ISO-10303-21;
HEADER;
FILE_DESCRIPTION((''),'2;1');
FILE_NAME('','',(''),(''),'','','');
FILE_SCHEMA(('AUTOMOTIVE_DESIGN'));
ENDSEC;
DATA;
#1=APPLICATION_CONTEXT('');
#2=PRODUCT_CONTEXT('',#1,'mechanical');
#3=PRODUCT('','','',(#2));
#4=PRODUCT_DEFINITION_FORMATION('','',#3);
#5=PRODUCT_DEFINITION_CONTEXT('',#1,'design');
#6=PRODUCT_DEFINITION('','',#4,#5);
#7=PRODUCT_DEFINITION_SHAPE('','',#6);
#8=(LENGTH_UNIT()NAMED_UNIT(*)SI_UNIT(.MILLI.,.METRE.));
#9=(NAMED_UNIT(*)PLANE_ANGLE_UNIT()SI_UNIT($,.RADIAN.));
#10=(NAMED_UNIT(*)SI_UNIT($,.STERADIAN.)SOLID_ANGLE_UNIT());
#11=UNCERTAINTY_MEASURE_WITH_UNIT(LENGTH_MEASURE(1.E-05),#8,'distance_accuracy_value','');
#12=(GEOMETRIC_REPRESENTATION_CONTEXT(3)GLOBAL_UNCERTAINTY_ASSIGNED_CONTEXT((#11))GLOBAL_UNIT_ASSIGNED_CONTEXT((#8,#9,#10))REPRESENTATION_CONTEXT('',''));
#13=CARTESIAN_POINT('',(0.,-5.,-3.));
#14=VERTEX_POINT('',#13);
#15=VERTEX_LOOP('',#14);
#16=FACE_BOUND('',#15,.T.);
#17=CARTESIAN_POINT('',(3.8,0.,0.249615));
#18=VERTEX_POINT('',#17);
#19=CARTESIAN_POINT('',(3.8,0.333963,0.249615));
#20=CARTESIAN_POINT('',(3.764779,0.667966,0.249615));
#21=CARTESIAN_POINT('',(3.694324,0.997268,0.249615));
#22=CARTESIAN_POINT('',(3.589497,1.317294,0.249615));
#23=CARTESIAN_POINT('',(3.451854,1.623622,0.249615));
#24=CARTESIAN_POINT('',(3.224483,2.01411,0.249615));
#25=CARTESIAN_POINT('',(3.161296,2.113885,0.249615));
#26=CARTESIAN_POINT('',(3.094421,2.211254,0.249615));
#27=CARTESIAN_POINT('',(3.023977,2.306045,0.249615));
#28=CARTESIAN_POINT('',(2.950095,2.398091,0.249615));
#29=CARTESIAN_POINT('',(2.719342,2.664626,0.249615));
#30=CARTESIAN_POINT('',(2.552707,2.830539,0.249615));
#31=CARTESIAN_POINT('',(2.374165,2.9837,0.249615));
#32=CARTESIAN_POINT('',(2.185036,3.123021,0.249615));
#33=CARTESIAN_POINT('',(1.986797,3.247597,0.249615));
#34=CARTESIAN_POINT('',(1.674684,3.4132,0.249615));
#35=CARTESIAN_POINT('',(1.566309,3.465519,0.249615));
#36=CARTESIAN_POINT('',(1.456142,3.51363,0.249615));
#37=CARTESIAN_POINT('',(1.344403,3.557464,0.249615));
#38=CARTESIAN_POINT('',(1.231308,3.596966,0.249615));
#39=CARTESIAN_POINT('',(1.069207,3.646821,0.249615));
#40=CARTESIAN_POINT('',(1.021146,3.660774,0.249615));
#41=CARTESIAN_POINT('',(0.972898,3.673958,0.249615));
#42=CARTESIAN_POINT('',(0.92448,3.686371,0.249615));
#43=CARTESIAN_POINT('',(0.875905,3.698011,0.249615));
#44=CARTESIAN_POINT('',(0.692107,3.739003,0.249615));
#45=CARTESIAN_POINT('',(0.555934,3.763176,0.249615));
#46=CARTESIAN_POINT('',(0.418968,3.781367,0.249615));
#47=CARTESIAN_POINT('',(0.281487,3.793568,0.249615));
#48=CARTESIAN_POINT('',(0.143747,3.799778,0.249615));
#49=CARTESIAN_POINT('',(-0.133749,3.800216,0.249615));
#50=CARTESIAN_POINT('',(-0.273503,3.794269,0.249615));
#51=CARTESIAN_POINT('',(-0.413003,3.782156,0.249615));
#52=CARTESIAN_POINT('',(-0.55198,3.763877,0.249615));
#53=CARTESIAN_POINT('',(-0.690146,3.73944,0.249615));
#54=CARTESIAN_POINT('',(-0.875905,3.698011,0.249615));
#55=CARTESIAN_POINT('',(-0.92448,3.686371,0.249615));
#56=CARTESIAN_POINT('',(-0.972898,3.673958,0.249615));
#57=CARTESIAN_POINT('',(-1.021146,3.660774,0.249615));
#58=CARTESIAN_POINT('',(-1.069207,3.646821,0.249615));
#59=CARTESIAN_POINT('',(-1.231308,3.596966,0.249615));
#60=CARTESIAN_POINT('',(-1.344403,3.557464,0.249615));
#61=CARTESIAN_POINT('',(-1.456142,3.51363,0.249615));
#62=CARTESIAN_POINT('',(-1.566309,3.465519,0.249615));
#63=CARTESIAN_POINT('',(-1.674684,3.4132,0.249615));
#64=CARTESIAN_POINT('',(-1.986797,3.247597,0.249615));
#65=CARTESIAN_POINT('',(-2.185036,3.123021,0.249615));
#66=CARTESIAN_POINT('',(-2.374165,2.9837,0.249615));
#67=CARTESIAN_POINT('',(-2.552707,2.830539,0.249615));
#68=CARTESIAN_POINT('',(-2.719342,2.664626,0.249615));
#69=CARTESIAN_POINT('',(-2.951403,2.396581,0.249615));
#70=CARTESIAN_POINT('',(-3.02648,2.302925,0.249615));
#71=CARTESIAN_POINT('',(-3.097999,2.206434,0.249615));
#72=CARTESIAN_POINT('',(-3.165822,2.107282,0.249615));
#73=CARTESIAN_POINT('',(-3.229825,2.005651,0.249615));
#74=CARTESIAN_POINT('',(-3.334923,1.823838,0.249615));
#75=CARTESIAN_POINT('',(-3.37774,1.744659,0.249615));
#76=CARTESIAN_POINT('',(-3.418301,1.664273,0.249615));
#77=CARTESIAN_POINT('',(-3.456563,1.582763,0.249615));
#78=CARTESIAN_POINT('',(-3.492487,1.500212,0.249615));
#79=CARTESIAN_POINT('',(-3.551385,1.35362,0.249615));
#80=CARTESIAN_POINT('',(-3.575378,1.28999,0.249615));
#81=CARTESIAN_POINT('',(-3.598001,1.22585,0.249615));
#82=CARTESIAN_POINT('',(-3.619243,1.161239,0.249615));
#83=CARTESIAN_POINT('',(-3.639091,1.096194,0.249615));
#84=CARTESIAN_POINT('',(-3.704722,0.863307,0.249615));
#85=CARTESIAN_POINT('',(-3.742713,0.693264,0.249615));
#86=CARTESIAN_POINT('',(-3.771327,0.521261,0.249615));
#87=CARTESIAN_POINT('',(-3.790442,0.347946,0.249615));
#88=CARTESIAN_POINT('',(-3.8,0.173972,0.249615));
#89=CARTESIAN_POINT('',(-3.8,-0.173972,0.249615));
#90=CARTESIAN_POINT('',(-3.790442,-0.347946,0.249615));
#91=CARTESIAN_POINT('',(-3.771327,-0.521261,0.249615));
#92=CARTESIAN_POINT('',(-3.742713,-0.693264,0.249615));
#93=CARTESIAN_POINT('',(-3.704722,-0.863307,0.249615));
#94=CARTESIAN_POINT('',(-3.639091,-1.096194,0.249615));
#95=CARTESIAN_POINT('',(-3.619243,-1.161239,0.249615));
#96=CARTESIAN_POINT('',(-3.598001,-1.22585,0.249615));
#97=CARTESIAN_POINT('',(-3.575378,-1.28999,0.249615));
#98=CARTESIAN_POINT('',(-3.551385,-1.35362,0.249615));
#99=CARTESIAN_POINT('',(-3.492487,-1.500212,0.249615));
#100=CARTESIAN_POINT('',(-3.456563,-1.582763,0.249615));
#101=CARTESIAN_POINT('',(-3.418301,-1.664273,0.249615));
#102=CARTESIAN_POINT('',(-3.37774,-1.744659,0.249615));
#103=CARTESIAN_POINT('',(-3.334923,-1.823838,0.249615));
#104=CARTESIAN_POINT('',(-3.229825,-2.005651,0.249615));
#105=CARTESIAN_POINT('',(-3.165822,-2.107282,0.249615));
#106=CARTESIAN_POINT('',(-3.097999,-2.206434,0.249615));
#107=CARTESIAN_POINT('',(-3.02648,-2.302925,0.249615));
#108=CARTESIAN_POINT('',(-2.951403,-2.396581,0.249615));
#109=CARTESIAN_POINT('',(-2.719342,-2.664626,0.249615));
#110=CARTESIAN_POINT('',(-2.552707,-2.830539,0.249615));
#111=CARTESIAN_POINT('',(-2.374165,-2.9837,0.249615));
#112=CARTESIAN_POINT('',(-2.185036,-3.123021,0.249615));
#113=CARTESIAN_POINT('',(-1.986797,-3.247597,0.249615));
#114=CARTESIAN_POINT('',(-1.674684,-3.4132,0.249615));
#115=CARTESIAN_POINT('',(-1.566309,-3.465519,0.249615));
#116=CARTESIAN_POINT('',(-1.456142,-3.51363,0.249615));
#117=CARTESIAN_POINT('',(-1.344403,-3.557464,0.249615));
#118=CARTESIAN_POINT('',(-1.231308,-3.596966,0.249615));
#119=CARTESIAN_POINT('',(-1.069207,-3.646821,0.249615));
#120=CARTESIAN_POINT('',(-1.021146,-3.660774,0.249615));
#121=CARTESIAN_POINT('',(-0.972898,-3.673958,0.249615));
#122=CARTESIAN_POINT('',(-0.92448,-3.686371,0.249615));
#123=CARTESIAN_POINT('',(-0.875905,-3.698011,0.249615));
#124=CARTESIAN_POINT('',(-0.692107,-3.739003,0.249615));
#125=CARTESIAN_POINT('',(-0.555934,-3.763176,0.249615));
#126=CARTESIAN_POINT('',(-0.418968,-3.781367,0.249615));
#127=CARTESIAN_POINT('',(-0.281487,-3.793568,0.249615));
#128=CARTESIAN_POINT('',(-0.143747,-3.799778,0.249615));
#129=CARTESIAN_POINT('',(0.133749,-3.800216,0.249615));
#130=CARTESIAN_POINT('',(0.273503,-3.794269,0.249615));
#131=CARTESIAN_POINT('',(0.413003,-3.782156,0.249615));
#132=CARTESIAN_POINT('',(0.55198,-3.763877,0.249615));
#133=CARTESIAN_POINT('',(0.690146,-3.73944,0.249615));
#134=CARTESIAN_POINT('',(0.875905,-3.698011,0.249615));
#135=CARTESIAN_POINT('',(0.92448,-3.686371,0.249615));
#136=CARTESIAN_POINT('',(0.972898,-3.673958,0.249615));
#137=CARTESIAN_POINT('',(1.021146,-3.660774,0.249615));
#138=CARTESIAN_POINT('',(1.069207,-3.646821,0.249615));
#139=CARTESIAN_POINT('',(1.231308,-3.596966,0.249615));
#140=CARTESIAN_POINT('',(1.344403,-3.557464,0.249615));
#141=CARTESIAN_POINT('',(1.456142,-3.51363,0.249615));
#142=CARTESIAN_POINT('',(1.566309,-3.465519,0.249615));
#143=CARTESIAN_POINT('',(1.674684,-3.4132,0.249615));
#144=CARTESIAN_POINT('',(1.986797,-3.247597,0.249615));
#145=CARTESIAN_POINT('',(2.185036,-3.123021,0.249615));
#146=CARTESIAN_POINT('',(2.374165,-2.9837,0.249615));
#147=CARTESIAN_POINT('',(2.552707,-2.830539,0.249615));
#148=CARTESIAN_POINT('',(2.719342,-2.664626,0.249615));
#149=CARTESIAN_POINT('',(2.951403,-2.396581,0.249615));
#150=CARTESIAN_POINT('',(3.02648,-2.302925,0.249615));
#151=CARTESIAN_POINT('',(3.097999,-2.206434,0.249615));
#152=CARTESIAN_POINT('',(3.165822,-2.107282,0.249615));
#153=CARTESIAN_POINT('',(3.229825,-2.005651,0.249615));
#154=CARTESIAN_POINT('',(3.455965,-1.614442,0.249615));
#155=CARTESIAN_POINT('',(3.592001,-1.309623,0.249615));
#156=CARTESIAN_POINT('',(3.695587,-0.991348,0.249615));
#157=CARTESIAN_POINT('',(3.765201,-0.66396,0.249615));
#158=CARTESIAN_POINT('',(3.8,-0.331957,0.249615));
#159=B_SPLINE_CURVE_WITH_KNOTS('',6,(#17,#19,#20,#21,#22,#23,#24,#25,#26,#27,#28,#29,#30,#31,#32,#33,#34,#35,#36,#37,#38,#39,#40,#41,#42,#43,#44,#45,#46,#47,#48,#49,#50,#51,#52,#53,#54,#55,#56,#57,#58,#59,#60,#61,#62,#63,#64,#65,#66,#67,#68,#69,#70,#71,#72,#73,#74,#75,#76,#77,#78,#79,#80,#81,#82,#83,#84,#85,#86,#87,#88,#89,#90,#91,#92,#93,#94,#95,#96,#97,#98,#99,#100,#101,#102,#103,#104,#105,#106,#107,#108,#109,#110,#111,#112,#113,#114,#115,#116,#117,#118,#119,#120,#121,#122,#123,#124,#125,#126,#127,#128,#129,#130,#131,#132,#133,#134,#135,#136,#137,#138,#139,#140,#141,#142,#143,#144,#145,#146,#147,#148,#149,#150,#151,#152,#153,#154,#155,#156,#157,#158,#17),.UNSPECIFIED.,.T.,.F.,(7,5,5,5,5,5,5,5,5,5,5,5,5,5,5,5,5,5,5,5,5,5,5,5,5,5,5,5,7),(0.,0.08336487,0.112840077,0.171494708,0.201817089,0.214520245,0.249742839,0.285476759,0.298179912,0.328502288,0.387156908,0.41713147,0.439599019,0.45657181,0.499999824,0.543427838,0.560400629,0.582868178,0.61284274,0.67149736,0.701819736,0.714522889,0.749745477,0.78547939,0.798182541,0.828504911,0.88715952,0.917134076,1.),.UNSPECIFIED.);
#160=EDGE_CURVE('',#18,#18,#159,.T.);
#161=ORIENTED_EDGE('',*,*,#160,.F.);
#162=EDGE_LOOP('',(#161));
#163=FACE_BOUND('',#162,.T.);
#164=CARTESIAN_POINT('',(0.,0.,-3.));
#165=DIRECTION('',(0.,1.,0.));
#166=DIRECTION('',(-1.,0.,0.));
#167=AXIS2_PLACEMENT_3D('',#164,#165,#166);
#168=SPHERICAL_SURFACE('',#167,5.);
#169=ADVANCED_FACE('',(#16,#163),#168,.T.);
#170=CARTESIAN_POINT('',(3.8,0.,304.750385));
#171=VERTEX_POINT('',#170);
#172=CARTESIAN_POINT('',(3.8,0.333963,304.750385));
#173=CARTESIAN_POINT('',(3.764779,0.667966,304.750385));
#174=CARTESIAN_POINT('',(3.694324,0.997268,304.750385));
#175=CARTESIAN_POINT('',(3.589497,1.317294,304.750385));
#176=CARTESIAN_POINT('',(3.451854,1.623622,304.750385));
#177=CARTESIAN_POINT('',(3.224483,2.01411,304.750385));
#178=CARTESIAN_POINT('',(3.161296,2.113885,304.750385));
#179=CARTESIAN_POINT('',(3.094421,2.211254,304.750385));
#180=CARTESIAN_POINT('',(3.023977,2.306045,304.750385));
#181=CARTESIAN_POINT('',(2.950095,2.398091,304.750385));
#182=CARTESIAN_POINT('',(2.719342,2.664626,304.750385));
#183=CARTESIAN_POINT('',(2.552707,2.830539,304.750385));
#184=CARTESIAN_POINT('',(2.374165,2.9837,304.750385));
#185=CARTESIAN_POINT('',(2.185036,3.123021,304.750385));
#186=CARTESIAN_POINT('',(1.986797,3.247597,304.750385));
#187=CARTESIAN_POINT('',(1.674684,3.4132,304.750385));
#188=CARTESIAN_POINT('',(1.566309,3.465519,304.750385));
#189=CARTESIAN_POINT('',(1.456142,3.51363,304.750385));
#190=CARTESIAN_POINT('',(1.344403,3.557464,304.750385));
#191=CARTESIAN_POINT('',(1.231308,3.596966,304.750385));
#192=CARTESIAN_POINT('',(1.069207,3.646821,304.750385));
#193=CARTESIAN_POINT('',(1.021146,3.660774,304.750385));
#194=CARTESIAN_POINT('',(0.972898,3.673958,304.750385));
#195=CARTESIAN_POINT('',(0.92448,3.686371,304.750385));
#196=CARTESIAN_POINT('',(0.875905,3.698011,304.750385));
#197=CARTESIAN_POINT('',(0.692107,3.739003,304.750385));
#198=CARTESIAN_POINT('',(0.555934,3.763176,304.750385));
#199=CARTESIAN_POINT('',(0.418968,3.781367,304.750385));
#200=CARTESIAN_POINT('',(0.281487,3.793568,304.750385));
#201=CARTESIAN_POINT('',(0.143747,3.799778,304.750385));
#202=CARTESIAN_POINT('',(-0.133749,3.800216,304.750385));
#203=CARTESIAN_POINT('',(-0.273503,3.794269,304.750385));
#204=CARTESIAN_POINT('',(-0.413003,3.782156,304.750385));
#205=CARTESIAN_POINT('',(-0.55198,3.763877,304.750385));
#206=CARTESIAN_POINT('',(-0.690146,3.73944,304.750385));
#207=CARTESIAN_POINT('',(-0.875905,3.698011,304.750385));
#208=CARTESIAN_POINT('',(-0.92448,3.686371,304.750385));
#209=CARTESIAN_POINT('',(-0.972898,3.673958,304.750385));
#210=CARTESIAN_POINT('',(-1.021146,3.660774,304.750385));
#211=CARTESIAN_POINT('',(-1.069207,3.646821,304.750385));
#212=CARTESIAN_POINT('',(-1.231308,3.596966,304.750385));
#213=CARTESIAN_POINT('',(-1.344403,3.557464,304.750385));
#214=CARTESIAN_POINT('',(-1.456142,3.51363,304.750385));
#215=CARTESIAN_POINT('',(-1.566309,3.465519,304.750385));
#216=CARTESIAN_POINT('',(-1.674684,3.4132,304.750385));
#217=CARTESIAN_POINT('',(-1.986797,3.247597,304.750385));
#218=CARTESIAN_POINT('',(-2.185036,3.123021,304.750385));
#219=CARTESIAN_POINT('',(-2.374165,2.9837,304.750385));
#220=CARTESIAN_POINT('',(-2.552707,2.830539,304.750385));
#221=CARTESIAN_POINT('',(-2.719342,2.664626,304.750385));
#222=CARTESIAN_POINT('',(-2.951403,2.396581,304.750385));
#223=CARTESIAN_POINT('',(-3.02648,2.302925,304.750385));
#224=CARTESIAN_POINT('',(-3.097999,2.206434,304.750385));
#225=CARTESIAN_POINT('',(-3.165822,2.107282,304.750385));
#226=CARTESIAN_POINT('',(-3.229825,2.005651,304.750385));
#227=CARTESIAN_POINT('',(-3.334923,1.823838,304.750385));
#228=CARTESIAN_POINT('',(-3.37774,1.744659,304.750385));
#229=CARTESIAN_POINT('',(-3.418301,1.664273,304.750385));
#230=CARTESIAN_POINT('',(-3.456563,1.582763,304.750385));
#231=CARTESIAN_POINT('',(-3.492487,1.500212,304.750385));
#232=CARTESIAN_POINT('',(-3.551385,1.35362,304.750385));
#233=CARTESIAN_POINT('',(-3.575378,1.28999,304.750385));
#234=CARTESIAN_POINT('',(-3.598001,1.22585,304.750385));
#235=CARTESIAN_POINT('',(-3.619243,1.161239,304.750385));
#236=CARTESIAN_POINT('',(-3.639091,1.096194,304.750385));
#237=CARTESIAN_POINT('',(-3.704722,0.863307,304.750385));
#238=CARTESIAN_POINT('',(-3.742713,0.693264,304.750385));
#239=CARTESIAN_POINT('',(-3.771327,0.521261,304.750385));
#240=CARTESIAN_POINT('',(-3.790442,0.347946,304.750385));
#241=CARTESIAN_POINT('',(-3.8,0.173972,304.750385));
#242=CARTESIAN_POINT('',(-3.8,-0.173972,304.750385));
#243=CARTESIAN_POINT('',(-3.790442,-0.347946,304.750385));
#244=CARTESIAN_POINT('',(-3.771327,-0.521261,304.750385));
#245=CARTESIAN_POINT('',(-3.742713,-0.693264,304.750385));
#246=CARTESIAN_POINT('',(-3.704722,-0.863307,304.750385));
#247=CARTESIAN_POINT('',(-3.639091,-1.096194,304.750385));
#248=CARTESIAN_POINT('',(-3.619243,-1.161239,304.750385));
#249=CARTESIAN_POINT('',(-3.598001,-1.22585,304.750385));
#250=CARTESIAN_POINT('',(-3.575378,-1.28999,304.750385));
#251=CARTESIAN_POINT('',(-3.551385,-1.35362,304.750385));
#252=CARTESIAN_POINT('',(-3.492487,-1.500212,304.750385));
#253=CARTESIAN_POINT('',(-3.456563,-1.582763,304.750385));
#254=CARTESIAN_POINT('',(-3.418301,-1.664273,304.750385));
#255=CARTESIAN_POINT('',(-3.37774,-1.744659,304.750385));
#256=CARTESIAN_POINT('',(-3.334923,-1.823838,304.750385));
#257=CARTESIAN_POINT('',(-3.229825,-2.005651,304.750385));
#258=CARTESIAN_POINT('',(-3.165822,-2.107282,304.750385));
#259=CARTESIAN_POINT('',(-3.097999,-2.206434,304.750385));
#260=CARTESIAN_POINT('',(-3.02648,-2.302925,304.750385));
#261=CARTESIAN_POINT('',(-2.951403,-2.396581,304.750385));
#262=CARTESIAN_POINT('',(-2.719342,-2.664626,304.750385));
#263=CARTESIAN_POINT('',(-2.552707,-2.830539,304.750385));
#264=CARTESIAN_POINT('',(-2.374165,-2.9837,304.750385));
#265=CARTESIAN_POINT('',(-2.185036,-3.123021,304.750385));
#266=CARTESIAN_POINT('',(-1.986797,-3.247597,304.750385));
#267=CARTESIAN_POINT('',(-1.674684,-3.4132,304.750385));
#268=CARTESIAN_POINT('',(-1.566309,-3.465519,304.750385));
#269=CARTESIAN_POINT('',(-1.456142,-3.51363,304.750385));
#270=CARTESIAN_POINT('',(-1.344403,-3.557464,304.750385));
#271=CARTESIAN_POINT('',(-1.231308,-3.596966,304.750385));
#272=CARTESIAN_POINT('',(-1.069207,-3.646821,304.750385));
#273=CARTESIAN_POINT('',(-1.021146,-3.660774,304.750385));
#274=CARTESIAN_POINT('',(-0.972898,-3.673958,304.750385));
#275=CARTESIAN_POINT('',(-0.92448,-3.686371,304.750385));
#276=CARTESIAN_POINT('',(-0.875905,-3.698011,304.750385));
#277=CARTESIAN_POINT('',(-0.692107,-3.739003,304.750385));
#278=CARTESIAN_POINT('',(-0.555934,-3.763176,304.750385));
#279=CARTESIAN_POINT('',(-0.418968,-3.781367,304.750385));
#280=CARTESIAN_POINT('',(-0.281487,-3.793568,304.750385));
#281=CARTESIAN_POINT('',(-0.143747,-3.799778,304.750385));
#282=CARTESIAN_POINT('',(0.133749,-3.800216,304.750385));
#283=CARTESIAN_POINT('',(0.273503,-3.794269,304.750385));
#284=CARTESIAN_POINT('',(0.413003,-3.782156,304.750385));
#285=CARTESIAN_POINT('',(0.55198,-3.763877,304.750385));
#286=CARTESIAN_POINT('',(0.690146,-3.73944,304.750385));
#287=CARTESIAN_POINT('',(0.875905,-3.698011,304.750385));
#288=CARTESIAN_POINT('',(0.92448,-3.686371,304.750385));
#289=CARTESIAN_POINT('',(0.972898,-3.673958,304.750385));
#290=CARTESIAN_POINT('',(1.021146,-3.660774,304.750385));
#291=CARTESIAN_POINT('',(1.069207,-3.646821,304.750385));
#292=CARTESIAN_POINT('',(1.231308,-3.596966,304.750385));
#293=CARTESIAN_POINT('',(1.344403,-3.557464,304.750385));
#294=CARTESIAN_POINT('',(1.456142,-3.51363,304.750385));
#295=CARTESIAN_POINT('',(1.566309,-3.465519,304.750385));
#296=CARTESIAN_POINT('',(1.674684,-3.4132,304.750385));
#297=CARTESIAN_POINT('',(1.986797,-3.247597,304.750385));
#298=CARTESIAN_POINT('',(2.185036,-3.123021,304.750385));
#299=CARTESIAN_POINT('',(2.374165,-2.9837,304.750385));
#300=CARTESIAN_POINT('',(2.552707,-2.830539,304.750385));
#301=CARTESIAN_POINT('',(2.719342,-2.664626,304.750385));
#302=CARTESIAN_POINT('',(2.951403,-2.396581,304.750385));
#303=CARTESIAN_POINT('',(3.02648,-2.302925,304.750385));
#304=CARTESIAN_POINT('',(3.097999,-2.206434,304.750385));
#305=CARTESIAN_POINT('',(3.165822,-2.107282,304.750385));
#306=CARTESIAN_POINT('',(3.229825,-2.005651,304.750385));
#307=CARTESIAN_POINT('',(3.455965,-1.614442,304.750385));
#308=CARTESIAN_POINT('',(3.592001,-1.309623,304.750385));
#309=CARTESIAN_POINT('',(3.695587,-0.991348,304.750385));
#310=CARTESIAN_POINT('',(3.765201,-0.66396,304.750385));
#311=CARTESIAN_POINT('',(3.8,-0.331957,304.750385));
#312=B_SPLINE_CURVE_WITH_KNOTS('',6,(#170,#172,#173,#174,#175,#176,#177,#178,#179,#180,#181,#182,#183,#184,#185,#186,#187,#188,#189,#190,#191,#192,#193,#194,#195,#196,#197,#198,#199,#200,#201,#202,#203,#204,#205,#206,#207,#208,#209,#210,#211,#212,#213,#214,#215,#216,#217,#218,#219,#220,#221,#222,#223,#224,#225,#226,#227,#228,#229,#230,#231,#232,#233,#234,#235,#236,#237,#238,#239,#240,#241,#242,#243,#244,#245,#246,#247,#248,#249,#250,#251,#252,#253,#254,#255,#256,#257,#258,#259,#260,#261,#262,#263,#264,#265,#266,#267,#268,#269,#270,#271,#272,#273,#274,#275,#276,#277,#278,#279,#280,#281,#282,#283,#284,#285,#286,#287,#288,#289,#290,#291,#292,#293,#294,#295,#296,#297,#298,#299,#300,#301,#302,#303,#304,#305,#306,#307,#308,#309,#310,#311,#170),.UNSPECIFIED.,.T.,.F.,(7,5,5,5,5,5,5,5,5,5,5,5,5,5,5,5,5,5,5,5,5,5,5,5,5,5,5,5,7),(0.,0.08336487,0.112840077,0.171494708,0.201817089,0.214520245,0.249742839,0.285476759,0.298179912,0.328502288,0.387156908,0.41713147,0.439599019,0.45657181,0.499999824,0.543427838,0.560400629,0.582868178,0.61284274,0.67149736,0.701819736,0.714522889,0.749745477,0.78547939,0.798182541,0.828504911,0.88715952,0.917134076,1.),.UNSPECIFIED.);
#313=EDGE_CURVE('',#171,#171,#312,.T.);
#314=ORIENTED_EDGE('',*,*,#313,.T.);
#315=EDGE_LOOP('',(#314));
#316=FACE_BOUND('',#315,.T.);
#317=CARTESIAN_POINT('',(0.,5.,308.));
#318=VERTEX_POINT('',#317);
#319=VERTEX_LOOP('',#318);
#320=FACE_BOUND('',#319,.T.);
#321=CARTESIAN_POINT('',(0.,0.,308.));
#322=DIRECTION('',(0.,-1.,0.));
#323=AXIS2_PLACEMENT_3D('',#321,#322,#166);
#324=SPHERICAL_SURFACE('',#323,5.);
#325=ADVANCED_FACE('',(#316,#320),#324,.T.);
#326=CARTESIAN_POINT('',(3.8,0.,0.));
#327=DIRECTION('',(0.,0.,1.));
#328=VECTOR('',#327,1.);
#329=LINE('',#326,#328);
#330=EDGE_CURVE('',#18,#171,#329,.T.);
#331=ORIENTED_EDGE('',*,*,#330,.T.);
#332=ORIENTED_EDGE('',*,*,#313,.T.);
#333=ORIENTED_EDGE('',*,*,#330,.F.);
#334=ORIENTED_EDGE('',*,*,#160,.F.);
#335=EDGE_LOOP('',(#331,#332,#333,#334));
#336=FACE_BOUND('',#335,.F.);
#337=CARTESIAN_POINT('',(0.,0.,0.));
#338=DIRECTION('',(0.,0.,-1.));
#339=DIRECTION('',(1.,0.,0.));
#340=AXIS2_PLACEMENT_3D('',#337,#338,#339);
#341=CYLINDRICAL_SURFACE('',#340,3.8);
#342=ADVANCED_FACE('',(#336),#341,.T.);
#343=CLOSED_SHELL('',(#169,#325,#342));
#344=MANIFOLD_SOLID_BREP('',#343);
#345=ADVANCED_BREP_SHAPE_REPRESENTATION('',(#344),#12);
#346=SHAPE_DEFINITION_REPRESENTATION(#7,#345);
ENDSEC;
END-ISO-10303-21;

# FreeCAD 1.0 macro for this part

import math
import FreeCAD as App
import Part
import Sketcher

V = App.Vector
Q = App.Units.Quantity

doc = App.newDocument("Part")
body = doc.addObject("PartDesign::Body", "Body")

# Sketch on XY plane
sketch1 = body.newObject("Sketcher::SketchObject", "Sketch")
sketch1.AttachmentSupport = (doc.getObject("XY_Plane"), [""])
sketch1.MapMode = "FlatFace"
sketch1.addGeometry(Part.Circle(V(0, 0, 0), V(0, 0, 1), 3.8), False)
sketch1.addConstraint(Sketcher.Constraint("Coincident", 0, 3, -1, 1))
sketch1.addConstraint(Sketcher.Constraint("Diameter", 0, Q("7.6 mm")))
pad1 = body.newObject("PartDesign::Pad", "Pad")
pad1.Profile = sketch1
pad1.Length = 305

# Sketch on XY plane
sketch2 = body.newObject("Sketcher::SketchObject", "Sketch001")
sketch2.AttachmentSupport = (doc.getObject("XY_Plane"), [""])
sketch2.MapMode = "FlatFace"
sketch2.AttachmentOffset = App.Placement(V(0, 0, 308), App.Rotation())
sketch2.addGeometry(Part.LineSegment(V(0, -5, 0), V(0, 5, 0)), False)
sketch2.addGeometry(Part.ArcOfCircle(Part.Circle(V(0, 0, 0), V(0, 0, 1), 5), math.radians(90), math.radians(270)), False)
sketch2.addConstraint(Sketcher.Constraint("Coincident", 0, 1, 1, 2))
sketch2.addConstraint(Sketcher.Constraint("Coincident", 1, 1, 0, 2))
sketch2.addConstraint(Sketcher.Constraint("Vertical", 0))
sketch2.addConstraint(Sketcher.Constraint("Coincident", 1, 3, -1, 1))
sketch2.addConstraint(Sketcher.Constraint("PointOnObject", 0, 1, -2))
sketch2.addConstraint(Sketcher.Constraint("Radius", 1, Q("5 mm")))
revolution = body.newObject("PartDesign::Revolution", "Revolution")
revolution.Profile = sketch2
revolution.ReferenceAxis = (sketch2, ["V_Axis"])
revolution.Angle = 360

# Sketch on XY plane
sketch3 = body.newObject("Sketcher::SketchObject", "Sketch002")
sketch3.AttachmentSupport = (doc.getObject("XY_Plane"), [""])
sketch3.MapMode = "FlatFace"
sketch3.AttachmentOffset = App.Placement(V(0, 0, -3), App.Rotation())
sketch3.addGeometry(Part.LineSegment(V(0, 5, 0), V(0, -5, 0)), False)
sketch3.addGeometry(Part.ArcOfCircle(Part.Circle(V(0, 0, 0), V(0, 0, 1), 5), math.radians(90), math.radians(270)), False)
sketch3.addConstraint(Sketcher.Constraint("Coincident", 0, 1, 1, 1))
sketch3.addConstraint(Sketcher.Constraint("Coincident", 1, 2, 0, 2))
sketch3.addConstraint(Sketcher.Constraint("Vertical", 0))
sketch3.addConstraint(Sketcher.Constraint("Coincident", 1, 3, -1, 1))
sketch3.addConstraint(Sketcher.Constraint("PointOnObject", 0, 1, -2))
sketch3.addConstraint(Sketcher.Constraint("Radius", 1, Q("5 mm")))
revolution2 = body.newObject("PartDesign::Revolution", "Revolution001")
revolution2.Profile = sketch3
revolution2.ReferenceAxis = (sketch3, ["V_Axis"])
revolution2.Angle = 360

doc.recompute()
